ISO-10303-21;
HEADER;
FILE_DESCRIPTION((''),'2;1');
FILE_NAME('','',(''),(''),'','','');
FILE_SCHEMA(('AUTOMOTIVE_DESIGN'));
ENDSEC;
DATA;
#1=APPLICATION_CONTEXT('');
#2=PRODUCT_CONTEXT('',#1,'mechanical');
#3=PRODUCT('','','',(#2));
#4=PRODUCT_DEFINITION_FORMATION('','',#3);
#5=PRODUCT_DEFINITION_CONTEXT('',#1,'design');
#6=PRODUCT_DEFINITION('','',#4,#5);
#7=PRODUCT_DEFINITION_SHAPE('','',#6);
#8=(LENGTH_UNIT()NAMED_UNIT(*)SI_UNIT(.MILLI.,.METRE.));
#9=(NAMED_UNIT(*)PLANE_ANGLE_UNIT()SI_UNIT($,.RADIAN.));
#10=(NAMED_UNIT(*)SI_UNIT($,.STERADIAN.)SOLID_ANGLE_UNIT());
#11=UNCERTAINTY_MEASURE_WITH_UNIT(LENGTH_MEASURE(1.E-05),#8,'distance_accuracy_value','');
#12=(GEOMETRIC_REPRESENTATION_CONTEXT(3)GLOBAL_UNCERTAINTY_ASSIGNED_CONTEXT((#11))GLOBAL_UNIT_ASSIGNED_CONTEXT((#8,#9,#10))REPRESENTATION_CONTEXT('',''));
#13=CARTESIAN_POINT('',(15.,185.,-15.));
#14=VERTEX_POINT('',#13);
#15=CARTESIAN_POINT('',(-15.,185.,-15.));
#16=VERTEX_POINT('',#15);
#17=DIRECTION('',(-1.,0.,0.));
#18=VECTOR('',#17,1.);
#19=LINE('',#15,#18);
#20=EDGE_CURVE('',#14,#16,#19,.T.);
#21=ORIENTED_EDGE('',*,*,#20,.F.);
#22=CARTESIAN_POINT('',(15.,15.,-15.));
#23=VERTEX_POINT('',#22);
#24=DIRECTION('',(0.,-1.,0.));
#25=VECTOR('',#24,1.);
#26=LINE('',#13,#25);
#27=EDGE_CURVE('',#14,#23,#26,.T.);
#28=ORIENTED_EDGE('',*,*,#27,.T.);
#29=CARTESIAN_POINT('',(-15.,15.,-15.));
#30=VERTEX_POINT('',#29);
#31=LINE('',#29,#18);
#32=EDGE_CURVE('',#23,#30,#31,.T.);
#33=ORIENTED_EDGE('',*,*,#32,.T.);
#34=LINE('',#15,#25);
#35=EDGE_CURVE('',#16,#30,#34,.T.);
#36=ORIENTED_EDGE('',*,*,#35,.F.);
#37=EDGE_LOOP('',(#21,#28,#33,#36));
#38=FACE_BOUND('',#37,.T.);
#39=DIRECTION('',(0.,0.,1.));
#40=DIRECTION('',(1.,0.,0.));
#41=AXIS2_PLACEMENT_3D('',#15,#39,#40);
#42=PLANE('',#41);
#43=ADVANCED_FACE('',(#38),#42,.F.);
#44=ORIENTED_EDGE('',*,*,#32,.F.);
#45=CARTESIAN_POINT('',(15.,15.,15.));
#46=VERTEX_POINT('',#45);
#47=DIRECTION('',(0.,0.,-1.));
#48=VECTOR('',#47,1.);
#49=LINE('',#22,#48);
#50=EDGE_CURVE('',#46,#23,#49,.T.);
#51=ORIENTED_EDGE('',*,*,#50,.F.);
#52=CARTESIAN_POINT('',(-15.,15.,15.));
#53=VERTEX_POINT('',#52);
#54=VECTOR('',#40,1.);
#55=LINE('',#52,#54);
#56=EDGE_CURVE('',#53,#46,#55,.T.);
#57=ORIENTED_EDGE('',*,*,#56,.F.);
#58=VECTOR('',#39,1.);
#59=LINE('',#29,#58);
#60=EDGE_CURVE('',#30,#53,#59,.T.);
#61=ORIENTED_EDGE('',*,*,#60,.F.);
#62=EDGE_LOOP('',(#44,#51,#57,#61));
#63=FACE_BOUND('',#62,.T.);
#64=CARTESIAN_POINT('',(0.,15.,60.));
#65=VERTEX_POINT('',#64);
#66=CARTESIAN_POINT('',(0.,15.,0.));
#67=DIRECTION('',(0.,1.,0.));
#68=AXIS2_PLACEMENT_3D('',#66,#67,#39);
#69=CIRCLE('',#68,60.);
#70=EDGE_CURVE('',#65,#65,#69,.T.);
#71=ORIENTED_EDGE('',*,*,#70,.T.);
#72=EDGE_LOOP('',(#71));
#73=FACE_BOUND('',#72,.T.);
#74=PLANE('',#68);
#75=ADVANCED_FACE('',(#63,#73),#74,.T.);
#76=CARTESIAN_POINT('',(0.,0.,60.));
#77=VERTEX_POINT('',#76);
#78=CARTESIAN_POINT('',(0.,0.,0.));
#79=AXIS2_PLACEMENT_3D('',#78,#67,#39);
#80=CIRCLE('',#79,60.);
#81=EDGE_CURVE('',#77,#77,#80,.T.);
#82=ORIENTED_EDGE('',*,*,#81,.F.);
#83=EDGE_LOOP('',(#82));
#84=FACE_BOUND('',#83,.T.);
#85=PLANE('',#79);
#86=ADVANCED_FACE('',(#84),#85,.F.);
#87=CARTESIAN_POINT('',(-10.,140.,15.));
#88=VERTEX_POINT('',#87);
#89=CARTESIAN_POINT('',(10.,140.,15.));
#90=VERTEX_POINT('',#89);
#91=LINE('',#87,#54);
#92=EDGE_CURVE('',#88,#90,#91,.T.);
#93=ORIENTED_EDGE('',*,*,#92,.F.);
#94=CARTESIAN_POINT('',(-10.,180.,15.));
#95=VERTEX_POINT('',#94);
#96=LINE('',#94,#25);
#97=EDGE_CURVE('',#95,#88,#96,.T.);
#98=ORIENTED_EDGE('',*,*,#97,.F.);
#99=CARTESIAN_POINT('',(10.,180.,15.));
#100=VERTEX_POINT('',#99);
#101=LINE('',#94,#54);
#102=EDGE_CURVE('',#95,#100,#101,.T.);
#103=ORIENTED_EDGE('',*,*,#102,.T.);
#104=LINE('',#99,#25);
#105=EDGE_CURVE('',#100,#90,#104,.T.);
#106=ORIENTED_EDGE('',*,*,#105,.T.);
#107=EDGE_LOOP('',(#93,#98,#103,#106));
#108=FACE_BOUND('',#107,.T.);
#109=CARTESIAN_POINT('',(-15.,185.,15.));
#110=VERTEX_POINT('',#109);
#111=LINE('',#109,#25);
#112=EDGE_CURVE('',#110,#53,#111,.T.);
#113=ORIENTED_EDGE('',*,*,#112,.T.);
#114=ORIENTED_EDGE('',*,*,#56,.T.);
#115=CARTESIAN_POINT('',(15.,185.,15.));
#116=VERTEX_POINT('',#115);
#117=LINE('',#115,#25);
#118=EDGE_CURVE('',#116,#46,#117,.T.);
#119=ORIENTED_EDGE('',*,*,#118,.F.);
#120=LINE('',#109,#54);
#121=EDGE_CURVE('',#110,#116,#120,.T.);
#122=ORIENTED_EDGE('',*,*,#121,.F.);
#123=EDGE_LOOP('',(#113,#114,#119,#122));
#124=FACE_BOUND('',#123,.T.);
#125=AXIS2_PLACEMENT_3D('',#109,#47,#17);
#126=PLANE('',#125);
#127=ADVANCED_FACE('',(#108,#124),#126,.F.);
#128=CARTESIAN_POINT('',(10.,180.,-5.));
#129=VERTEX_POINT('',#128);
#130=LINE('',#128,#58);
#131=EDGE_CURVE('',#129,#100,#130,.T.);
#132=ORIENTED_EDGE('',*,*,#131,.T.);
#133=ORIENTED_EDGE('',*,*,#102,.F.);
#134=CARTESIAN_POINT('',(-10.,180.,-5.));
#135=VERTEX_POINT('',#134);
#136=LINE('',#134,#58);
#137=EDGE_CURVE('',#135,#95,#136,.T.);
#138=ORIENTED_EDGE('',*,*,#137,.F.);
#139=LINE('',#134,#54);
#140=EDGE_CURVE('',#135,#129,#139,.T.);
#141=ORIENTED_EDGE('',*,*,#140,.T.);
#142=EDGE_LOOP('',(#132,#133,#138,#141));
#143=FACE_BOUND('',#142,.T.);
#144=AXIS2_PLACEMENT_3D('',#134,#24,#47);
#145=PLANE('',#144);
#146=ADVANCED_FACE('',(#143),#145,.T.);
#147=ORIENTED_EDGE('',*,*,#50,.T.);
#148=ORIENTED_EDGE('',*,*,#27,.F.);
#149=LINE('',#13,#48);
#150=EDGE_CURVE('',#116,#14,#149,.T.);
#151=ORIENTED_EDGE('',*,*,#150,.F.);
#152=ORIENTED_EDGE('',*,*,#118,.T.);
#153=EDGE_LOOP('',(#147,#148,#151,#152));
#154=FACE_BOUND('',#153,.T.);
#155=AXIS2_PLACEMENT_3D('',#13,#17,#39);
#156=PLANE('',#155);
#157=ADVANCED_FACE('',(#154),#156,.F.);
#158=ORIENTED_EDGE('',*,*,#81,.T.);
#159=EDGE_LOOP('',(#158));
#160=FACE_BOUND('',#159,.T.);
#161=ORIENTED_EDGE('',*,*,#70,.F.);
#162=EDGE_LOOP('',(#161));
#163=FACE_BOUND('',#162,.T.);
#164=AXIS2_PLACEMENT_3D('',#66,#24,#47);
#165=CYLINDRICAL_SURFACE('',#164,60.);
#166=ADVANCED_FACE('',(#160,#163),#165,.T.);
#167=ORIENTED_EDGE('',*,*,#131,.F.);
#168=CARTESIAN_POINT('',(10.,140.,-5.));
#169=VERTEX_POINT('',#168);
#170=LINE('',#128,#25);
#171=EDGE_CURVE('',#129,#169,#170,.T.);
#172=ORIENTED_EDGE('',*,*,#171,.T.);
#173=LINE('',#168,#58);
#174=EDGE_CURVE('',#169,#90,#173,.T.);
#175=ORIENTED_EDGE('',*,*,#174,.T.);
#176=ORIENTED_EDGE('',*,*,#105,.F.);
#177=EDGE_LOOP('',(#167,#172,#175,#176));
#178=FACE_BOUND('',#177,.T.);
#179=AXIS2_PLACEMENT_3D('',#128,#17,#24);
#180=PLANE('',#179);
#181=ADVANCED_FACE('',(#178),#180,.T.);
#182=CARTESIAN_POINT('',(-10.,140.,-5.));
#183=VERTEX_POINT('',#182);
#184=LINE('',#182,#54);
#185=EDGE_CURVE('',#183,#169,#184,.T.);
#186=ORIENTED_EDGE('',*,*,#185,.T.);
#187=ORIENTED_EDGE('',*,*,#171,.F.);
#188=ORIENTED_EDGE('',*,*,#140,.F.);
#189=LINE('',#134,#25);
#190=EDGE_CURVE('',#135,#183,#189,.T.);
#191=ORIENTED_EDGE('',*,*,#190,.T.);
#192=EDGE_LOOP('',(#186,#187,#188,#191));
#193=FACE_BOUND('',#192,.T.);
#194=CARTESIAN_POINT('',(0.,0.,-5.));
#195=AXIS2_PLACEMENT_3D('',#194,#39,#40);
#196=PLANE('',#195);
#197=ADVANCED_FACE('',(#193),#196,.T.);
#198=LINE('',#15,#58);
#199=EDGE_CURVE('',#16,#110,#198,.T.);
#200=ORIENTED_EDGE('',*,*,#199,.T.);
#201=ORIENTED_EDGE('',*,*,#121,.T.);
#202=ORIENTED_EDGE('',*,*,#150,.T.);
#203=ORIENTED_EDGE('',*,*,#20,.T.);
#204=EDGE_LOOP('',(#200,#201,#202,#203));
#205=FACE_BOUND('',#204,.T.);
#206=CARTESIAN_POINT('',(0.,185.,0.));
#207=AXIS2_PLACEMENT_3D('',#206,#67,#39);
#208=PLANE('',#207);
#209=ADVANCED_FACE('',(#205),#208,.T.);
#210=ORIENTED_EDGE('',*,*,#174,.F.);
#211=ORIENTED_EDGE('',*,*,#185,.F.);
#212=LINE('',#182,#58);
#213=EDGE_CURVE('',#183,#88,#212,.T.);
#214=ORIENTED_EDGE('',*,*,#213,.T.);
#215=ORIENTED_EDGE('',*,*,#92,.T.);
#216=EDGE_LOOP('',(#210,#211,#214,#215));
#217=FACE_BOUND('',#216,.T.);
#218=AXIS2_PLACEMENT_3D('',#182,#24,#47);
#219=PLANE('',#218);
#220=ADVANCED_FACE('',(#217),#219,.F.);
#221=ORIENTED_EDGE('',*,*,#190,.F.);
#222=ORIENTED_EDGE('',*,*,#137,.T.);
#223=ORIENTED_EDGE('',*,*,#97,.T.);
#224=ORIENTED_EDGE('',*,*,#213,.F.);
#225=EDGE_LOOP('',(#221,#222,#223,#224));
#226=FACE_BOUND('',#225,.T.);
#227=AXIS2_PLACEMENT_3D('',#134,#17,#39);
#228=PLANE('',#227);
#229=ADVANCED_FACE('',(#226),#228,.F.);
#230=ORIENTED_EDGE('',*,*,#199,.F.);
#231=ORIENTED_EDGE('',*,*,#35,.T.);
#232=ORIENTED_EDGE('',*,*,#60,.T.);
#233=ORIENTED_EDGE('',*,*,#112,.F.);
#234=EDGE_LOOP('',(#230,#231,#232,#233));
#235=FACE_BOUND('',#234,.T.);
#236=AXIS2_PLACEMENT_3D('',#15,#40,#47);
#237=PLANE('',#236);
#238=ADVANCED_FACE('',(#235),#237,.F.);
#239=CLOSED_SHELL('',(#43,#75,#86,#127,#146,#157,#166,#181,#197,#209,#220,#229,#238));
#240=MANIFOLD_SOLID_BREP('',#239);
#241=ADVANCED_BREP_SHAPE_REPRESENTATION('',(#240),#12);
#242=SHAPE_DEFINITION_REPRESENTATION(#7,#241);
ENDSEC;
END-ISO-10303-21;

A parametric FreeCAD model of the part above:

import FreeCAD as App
import Part
import Sketcher
from FreeCAD import Vector

doc = App.newDocument("Part")
params = doc.addObject("Spreadsheet::Sheet", "Params")
for row, (alias, value) in enumerate([
    ("sketch1_diameter", "120 mm"),
    ("pad1_length", "15 mm"),
    ("sketch2_width", "30 mm"),
    ("pad2_length", "170 mm"),
    ("sketch3_width", "20 mm"),
    ("sketch3_height", "40 mm"),
    ("pocket1_length", "20 mm"),
], start=1):
    params.set(f"A{row}", alias)
    params.set(f"B{row}", "=" + value)
    params.setAlias(f"B{row}", alias)

body = doc.addObject("PartDesign::Body", "Body")

# Sketch on XZ plane
sketch1 = doc.addObject("Sketcher::SketchObject", "Sketch")
body.addObject(sketch1)
sketch1.AttachmentSupport = (doc.XZ_Plane, [""])
sketch1.MapMode = "FlatFace"
sketch1.addGeometry(Part.Circle(Vector(0, 0, 0), Vector(0, 0, 1), 60), False)
sketch1.addConstraint([
    Sketcher.Constraint("Coincident", 0, 3, -1, 1),
    Sketcher.Constraint("Diameter", 0, 120.0),
])
sketch1.setExpression("Constraints[1]", "Params.sketch1_diameter")
pad1 = doc.addObject("PartDesign::Pad", "Pad")
body.addObject(pad1)
pad1.Profile = sketch1
pad1.setExpression("Length", "Params.pad1_length")
pad1.Reversed = True

# Sketch on XZ plane
sketch2 = doc.addObject("Sketcher::SketchObject", "Sketch001")
body.addObject(sketch2)
sketch2.AttachmentSupport = (doc.XZ_Plane, [""])
sketch2.MapMode = "FlatFace"
sketch2.AttachmentOffset = App.Placement(Vector(0, 0, -15), App.Rotation())
sketch2.addGeometry([
    Part.LineSegment(Vector(-15, -15, 0), Vector(-15, 15, 0)),
    Part.LineSegment(Vector(-15, 15, 0), Vector(15, 15, 0)),
    Part.LineSegment(Vector(15, 15, 0), Vector(15, -15, 0)),
    Part.LineSegment(Vector(15, -15, 0), Vector(-15, -15, 0)),
], False)
sketch2.addConstraint([
    Sketcher.Constraint("Coincident", 0, 2, 1, 1),
    Sketcher.Constraint("Coincident", 1, 2, 2, 1),
    Sketcher.Constraint("Coincident", 2, 2, 3, 1),
    Sketcher.Constraint("Coincident", 3, 2, 0, 1),
    Sketcher.Constraint("Vertical", 0),
    Sketcher.Constraint("Horizontal", 1),
    Sketcher.Constraint("Vertical", 2),
    Sketcher.Constraint("Horizontal", 3),
    Sketcher.Constraint("Symmetric", 0, 2, 2, 2, -1, 1),
    Sketcher.Constraint("Equal", 3, 0),
    Sketcher.Constraint("DistanceX", 1, 1, 1, 2, 30.0),
])
sketch2.setExpression("Constraints[10]", "Params.sketch2_width")
pad2 = doc.addObject("PartDesign::Pad", "Pad001")
body.addObject(pad2)
pad2.Profile = sketch2
pad2.setExpression("Length", "Params.pad2_length")
pad2.Reversed = True

# Sketch on XY plane
sketch3 = doc.addObject("Sketcher::SketchObject", "Sketch002")
body.addObject(sketch3)
sketch3.AttachmentSupport = (doc.XY_Plane, [""])
sketch3.MapMode = "FlatFace"
sketch3.AttachmentOffset = App.Placement(Vector(0, 0, 15), App.Rotation())
sketch3.addGeometry([
    Part.LineSegment(Vector(-10, 180, 0), Vector(-10, 140, 0)),
    Part.LineSegment(Vector(-10, 140, 0), Vector(10, 140, 0)),
    Part.LineSegment(Vector(10, 140, 0), Vector(10, 180, 0)),
    Part.LineSegment(Vector(10, 180, 0), Vector(-10, 180, 0)),
], False)
sketch3.addConstraint([
    Sketcher.Constraint("Coincident", 0, 2, 1, 1),
    Sketcher.Constraint("Coincident", 1, 2, 2, 1),
    Sketcher.Constraint("Coincident", 2, 2, 3, 1),
    Sketcher.Constraint("Coincident", 3, 2, 0, 1),
    Sketcher.Constraint("Vertical", 0),
    Sketcher.Constraint("Horizontal", 1),
    Sketcher.Constraint("Vertical", 2),
    Sketcher.Constraint("Horizontal", 3),
    Sketcher.Constraint("DistanceX", 1, 1, 1, 2, 20.0),
    Sketcher.Constraint("DistanceY", 0, 2, 0, 1, 40.0),
    Sketcher.Constraint("DistanceX", 0, 2, -1, 1, 10.0),
    Sketcher.Constraint("DistanceY", -1, 1, 0, 2, 140.0),
])
sketch3.setExpression("Constraints[8]", "Params.sketch3_width")
sketch3.setExpression("Constraints[9]", "Params.sketch3_height")
pocket1 = doc.addObject("PartDesign::Pocket", "Pocket")
body.addObject(pocket1)
pocket1.Profile = sketch3
pocket1.setExpression("Length", "Params.pocket1_length")

doc.recompute()
